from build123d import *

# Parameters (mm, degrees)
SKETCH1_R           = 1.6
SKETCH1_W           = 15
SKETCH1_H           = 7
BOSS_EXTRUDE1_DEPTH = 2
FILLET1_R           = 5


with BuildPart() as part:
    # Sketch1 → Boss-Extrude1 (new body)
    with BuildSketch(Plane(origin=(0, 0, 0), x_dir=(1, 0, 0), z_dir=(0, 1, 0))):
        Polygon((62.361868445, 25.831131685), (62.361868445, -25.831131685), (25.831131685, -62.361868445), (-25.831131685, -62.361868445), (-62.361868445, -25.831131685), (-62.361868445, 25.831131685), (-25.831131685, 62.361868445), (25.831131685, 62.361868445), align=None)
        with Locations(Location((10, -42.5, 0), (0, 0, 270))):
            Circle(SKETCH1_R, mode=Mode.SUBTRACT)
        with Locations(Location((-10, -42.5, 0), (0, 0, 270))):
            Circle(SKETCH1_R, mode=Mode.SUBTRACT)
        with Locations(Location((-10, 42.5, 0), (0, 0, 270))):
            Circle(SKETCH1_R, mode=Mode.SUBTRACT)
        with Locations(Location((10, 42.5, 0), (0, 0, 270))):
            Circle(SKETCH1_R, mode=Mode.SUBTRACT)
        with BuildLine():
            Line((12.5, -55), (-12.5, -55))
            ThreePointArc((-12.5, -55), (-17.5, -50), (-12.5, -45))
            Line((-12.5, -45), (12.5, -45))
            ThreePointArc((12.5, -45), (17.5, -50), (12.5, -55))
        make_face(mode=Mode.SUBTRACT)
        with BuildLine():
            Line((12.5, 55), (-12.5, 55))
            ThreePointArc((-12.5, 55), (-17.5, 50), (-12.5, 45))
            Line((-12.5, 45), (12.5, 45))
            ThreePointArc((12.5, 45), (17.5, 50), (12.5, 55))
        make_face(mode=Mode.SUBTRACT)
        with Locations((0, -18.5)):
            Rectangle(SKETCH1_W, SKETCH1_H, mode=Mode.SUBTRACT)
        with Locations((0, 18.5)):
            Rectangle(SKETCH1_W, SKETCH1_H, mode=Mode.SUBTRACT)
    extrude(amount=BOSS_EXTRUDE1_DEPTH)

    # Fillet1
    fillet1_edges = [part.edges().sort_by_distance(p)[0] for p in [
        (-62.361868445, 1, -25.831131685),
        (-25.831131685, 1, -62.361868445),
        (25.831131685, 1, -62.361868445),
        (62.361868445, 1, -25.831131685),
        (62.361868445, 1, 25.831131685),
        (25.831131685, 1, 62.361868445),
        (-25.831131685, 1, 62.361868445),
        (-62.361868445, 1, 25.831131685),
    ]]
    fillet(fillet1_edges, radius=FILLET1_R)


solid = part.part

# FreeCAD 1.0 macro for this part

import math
import FreeCAD as App
import Part
import Sketcher

V = App.Vector


def edges_at(feature, points):
    """Names of the edges that pass closest to the given points."""
    edges = feature.Shape.Edges
    near = lambda p: min(range(len(edges)), key=lambda i: edges[i].distToShape(Part.Vertex(*p))[0])
    return sorted({f"Edge{near(p) + 1}" for p in points})


def add_polygon(sketch, points):
    """Adds a closed chain of lines whose ends are joined by coincident constraints."""
    first, n = sketch.GeometryCount, len(points)
    for a, b in zip(points, points[1:] + points[:1]):
        sketch.addGeometry(Part.LineSegment(App.Vector(*a, 0), App.Vector(*b, 0)), False)
    for i in range(n):
        sketch.addConstraint(Sketcher.Constraint("Coincident", first + i, 2, first + (i + 1) % n, 1))

doc = App.newDocument("Part")
body = doc.addObject("PartDesign::Body", "Body")

# Sketch on XZ plane
sketch1 = body.newObject("Sketcher::SketchObject", "Sketch")
sketch1.AttachmentSupport = (doc.getObject("XZ_Plane"), [""])
sketch1.MapMode = "FlatFace"
add_polygon(sketch1, [(62.4, 25.8), (62.4, -25.8), (25.8, -62.4), (-25.8, -62.4), (-62.4, -25.8), (-62.4, 25.8), (-25.8, 62.4), (25.8, 62.4)])  # lines 0-7
sketch1.addGeometry(Part.Circle(V(10, 42.5, 0), V(0, 0, 1), 1.6), False)  # 8
sketch1.addGeometry(Part.LineSegment(V(12.5, 55, 0), V(-12.5, 55, 0)), False)  # 9
sketch1.addGeometry(Part.ArcOfCircle(Part.Circle(V(-12.5, 50, 0), V(0, 0, 1), 5), math.radians(90), math.radians(270)), False)  # 10
sketch1.addGeometry(Part.LineSegment(V(-12.5, 45, 0), V(12.5, 45, 0)), False)  # 11
sketch1.addGeometry(Part.ArcOfCircle(Part.Circle(V(12.5, 50, 0), V(0, 0, 1), 5), math.radians(-90), math.radians(90)), False)  # 12
sketch1.addGeometry(Part.Circle(V(-10, 42.5, 0), V(0, 0, 1), 1.6), False)  # 13
add_polygon(sketch1, [(-7.5, 22), (-7.5, 15), (7.5, 15), (7.5, 22)])  # lines 14-17
sketch1.addGeometry(Part.Circle(V(10, -42.5, 0), V(0, 0, 1), 1.6), False)  # 18
add_polygon(sketch1, [(-7.5, -15), (-7.5, -22), (7.5, -22), (7.5, -15)])  # lines 19-22
sketch1.addGeometry(Part.ArcOfCircle(Part.Circle(V(12.5, -50, 0), V(0, 0, 1), 5), math.radians(-90), math.radians(90)), False)  # 23
sketch1.addGeometry(Part.LineSegment(V(12.5, -45, 0), V(-12.5, -45, 0)), False)  # 24
sketch1.addGeometry(Part.ArcOfCircle(Part.Circle(V(-12.5, -50, 0), V(0, 0, 1), 5), math.radians(90), math.radians(270)), False)  # 25
sketch1.addGeometry(Part.LineSegment(V(-12.5, -55, 0), V(12.5, -55, 0)), False)  # 26
sketch1.addGeometry(Part.Circle(V(-10, -42.5, 0), V(0, 0, 1), 1.6), False)  # 27
sketch1.addConstraint(Sketcher.Constraint("Tangent", 9, 2, 10, 1))
sketch1.addConstraint(Sketcher.Constraint("Tangent", 10, 2, 11, 1))
sketch1.addConstraint(Sketcher.Constraint("Tangent", 11, 2, 12, 1))
sketch1.addConstraint(Sketcher.Constraint("Tangent", 12, 2, 9, 1))
sketch1.addConstraint(Sketcher.Constraint("Tangent", 23, 2, 24, 1))
sketch1.addConstraint(Sketcher.Constraint("Tangent", 24, 2, 25, 1))
sketch1.addConstraint(Sketcher.Constraint("Tangent", 25, 2, 26, 1))
sketch1.addConstraint(Sketcher.Constraint("Tangent", 26, 2, 23, 1))
sketch1.addConstraint(Sketcher.Constraint("Vertical", 0))
sketch1.addConstraint(Sketcher.Constraint("Horizontal", 2))
sketch1.addConstraint(Sketcher.Constraint("Vertical", 4))
sketch1.addConstraint(Sketcher.Constraint("Horizontal", 6))
sketch1.addConstraint(Sketcher.Constraint("Horizontal", 9))
sketch1.addConstraint(Sketcher.Constraint("Horizontal", 11))
sketch1.addConstraint(Sketcher.Constraint("Vertical", 14))
sketch1.addConstraint(Sketcher.Constraint("Horizontal", 15))
sketch1.addConstraint(Sketcher.Constraint("Vertical", 16))
sketch1.addConstraint(Sketcher.Constraint("Horizontal", 17))
sketch1.addConstraint(Sketcher.Constraint("Vertical", 19))
sketch1.addConstraint(Sketcher.Constraint("Horizontal", 20))
sketch1.addConstraint(Sketcher.Constraint("Vertical", 21))
sketch1.addConstraint(Sketcher.Constraint("Horizontal", 22))
sketch1.addConstraint(Sketcher.Constraint("Horizontal", 24))
sketch1.addConstraint(Sketcher.Constraint("Horizontal", 26))
sketch1.addConstraint(Sketcher.Constraint("Equal", 8, 13))
sketch1.addConstraint(Sketcher.Constraint("Equal", 13, 18))
sketch1.addConstraint(Sketcher.Constraint("Equal", 12, 23))
sketch1.addConstraint(Sketcher.Constraint("Equal", 18, 27))
sketch1.addConstraint(Sketcher.Constraint("Symmetric", 13, 3, 18, 3, -1, 1))
sketch1.addConstraint(Sketcher.Constraint("Symmetric", 10, 3, 23, 3, -1, 1))
sketch1.addConstraint(Sketcher.Constraint("Symmetric", 8, 3, 27, 3, -1, 1))
sketch1.addConstraint(Sketcher.Constraint("Symmetric", 0, 2, 4, 2, -1, 1))
sketch1.addConstraint(Sketcher.Constraint("Symmetric", 1, 2, 5, 2, -1, 1))
sketch1.addConstraint(Sketcher.Constraint("Symmetric", 16, 2, 19, 2, -1, 1))
sketch1.addConstraint(Sketcher.Constraint("Symmetric", 14, 2, 21, 2, -1, 1))
sketch1.addConstraint(Sketcher.Constraint("Symmetric", 8, 3, 13, 3, -2))
sketch1.addConstraint(Sketcher.Constraint("Perpendicular", 1, 3))
sketch1.addConstraint(Sketcher.Constraint("Perpendicular", 5, 7))
sketch1.addConstraint(Sketcher.Constraint("Horizontal", 0, 2, 3, 2))
sketch1.addConstraint(Sketcher.Constraint("Horizontal", 4, 2, 7, 2))
sketch1.addConstraint(Sketcher.Constraint("Vertical", 12, 3, 23, 3))
sketch1.addConstraint(Sketcher.Constraint("Vertical", 10, 3, 25, 3))
sketch1.addConstraint(Sketcher.Constraint("Vertical", 2, 2, 5, 2))
sketch1.addConstraint(Sketcher.Constraint("Vertical", 17, 2, 19, 2))
sketch1.addConstraint(Sketcher.Constraint("Equal", 6, 0))
sketch1.addConstraint(Sketcher.Constraint("Radius", 10, 5.0))
sketch1.addConstraint(Sketcher.Constraint("Diameter", 8, 3.2))
sketch1.addConstraint(Sketcher.Constraint("DistanceX", 9, 2, 9, 1, 25.0))
sketch1.addConstraint(Sketcher.Constraint("DistanceX", 15, 1, 15, 2, 15.0))
sketch1.addConstraint(Sketcher.Constraint("DistanceY", 14, 2, 14, 1, 7.0))
sketch1.addConstraint(Sketcher.Constraint("DistanceX", -1, 1, 8, 3, 10.0))
sketch1.addConstraint(Sketcher.Constraint("DistanceY", -1, 1, 10, 3, 50.0))
sketch1.addConstraint(Sketcher.Constraint("DistanceY", -1, 1, 14, 2, 15.0))
sketch1.addConstraint(Sketcher.Constraint("DistanceY", 18, 3, 8, 3, 85.0))
sketch1.addConstraint(Sketcher.Constraint("DistanceX", 2, 2, 2, 1, 51.662263))
sketch1.addConstraint(Sketcher.Constraint("DistanceX", -1, 1, 0, 2, 62.361868))
pad1 = body.newObject("PartDesign::Pad", "Pad")
pad1.Profile = sketch1
pad1.Length = 2
pad1.Reversed = True
doc.recompute()

fillet = body.newObject("PartDesign::Fillet", "Fillet")
fillet.Base = (pad1, edges_at(pad1, [
    (-62.362, 1, -25.831),
    (-25.831, 1, -62.362),
    (25.831, 1, -62.362),
    (62.362, 1, -25.831),
    (62.362, 1, 25.831),
    (25.831, 1, 62.362),
    (-25.831, 1, 62.362),
    (-62.362, 1, 25.831),
]))
fillet.Radius = 5

doc.recompute()
